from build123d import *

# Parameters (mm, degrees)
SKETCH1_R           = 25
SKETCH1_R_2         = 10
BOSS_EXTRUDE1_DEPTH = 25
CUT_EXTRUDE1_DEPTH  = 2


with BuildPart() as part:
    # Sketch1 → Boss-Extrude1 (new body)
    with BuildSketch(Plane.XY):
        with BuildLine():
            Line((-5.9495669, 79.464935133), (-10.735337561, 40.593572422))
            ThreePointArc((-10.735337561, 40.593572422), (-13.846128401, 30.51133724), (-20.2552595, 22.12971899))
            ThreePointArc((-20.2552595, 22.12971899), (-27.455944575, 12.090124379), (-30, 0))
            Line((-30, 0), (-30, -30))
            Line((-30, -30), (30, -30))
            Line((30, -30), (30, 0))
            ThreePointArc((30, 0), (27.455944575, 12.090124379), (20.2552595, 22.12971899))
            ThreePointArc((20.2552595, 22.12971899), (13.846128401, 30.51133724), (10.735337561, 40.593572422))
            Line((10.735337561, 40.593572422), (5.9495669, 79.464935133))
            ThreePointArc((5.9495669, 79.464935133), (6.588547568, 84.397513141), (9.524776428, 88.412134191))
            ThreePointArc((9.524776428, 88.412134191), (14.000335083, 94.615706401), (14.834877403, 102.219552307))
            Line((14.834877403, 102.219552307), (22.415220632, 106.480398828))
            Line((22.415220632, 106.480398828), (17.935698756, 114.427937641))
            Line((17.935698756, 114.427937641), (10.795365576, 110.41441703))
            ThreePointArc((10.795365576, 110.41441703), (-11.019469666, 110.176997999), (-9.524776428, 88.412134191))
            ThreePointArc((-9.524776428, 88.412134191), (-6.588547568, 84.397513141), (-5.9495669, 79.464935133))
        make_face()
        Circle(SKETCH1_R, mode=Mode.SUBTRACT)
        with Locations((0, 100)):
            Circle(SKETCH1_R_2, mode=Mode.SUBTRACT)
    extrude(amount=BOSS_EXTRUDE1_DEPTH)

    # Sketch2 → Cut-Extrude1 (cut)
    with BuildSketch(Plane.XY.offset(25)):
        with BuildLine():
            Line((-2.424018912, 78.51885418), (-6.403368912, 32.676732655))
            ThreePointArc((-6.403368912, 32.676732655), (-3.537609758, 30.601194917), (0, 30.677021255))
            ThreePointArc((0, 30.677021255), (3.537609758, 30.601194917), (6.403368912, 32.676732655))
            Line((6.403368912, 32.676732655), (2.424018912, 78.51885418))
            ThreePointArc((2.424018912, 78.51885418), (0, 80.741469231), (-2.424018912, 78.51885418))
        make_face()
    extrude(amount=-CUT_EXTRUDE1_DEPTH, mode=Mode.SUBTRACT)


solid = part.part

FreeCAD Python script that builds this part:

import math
import FreeCAD as App
import Part
import Sketcher
Q = App.Units.Quantity

doc = App.newDocument("Part")
body = doc.addObject("PartDesign::Body", "Body")

sketch1 = doc.addObject("Sketcher::SketchObject", "Sketch")
body.addObject(sketch1)
sketch1.AttachmentSupport = (doc.XY_Plane, [""])
sketch1.MapMode = "FlatFace"
sketch1.addGeometry([
    Part.LineSegment(App.Vector(-6, 79, 0), App.Vector(-11, 41, 0)),
    Part.ArcOfCircle(Part.Circle(App.Vector(-41, 44, 0), App.Vector(0, 0, 1), 30), math.radians(-48), math.radians(-7)),
    Part.ArcOfCircle(Part.Circle(App.Vector(0, 0, 0), App.Vector(0, 0, 1), 30), math.radians(132), math.radians(180)),
    Part.LineSegment(App.Vector(-30, 0, 0), App.Vector(-30, -30, 0)),
    Part.LineSegment(App.Vector(-30, -30, 0), App.Vector(30, -30, 0)),
    Part.LineSegment(App.Vector(30, -30, 0), App.Vector(30, 0, 0)),
    Part.ArcOfCircle(Part.Circle(App.Vector(0, 0, 0), App.Vector(0, 0, 1), 30), math.radians(0), math.radians(48)),
    Part.ArcOfCircle(Part.Circle(App.Vector(41, 44, 0), App.Vector(0, 0, 1), 30), math.radians(-173), math.radians(-132)),
    Part.LineSegment(App.Vector(11, 41, 0), App.Vector(6, 79, 0)),
    Part.ArcOfCircle(Part.Circle(App.Vector(16, 81, 0), App.Vector(0, 0, 1), 10), math.radians(129), math.radians(187)),
    Part.ArcOfCircle(Part.Circle(App.Vector(0, 100, 0), App.Vector(0, 0, 1), 15), math.radians(-51), math.radians(9)),
    Part.LineSegment(App.Vector(15, 102, 0), App.Vector(22, 106, 0)),
    Part.LineSegment(App.Vector(22, 106, 0), App.Vector(18, 114, 0)),
    Part.LineSegment(App.Vector(18, 114, 0), App.Vector(11, 110, 0)),
    Part.ArcOfCircle(Part.Circle(App.Vector(0, 100, 0), App.Vector(0, 0, 1), 15), math.radians(44), math.radians(231)),
    Part.ArcOfCircle(Part.Circle(App.Vector(-16, 81, 0), App.Vector(0, 0, 1), 10), math.radians(-7), math.radians(51)),
    Part.Circle(App.Vector(0, 0, 0), App.Vector(0, 0, 1), 25),
    Part.Circle(App.Vector(0, 100, 0), App.Vector(0, 0, 1), 10),
], False)
sketch1.addConstraint([
    Sketcher.Constraint("Tangent", 0, 2, 1, 2),
    Sketcher.Constraint("Tangent", 1, 1, 2, 1),
    Sketcher.Constraint("Tangent", 2, 2, 3, 1),
    Sketcher.Constraint("Coincident", 3, 2, 4, 1),
    Sketcher.Constraint("Coincident", 4, 2, 5, 1),
    Sketcher.Constraint("Tangent", 5, 2, 6, 1),
    Sketcher.Constraint("Tangent", 6, 2, 7, 2),
    Sketcher.Constraint("Tangent", 7, 1, 8, 1),
    Sketcher.Constraint("Tangent", 8, 2, 9, 2),
    Sketcher.Constraint("Tangent", 9, 1, 10, 1),
    Sketcher.Constraint("Coincident", 10, 2, 11, 1),
    Sketcher.Constraint("Coincident", 11, 2, 12, 1),
    Sketcher.Constraint("Coincident", 12, 2, 13, 1),
    Sketcher.Constraint("Coincident", 13, 2, 14, 1),
    Sketcher.Constraint("Tangent", 14, 2, 15, 2),
    Sketcher.Constraint("Tangent", 15, 1, 0, 1),
    Sketcher.Constraint("Vertical", 3),
    Sketcher.Constraint("Horizontal", 4),
    Sketcher.Constraint("Vertical", 5),
    Sketcher.Constraint("Coincident", 2, 3, -1, 1),
    Sketcher.Constraint("Coincident", 6, 3, -1, 1),
    Sketcher.Constraint("Coincident", 16, 3, -1, 1),
    Sketcher.Constraint("Coincident", 14, 3, 10, 3),
    Sketcher.Constraint("Coincident", 17, 3, 10, 3),
    Sketcher.Constraint("Equal", 1, 2),
    Sketcher.Constraint("Equal", 2, 6),
    Sketcher.Constraint("Equal", 6, 7),
    Sketcher.Constraint("Equal", 10, 14),
    Sketcher.Constraint("Equal", 9, 15),
    Sketcher.Constraint("Equal", 15, 17),
    Sketcher.Constraint("Symmetric", 9, 3, 15, 3, -2),
    Sketcher.Constraint("Parallel", 11, 13),
    Sketcher.Constraint("Horizontal", 1, 3, 7, 3),
    Sketcher.Constraint("Diameter", 16, Q("50 mm")),
    Sketcher.Constraint("Diameter", 17, Q("20 mm")),
    Sketcher.Constraint("Radius", 1, Q("30 mm")),
    Sketcher.Constraint("Radius", 10, Q("15 mm")),
    Sketcher.Constraint("DistanceY", 3, 2, 3, 1, Q("30 mm")),
    Sketcher.Constraint("DistanceY", -1, 1, 10, 3, Q("100 mm")),
    Sketcher.Constraint("DistanceY", -1, 1, 11, 2, Q("106.480399 mm")),
    Sketcher.Constraint("DistanceX", -1, 1, 12, 2, Q("17.935699 mm")),
    Sketcher.Constraint("DistanceY", 8, 2, 9, 1, Q("8.947199 mm")),
    Sketcher.Constraint("DistanceX", 9, 1, 10, 2, Q("5.310101 mm")),
    Sketcher.Constraint("Distance", 11, Q("8.69577 mm")),
    Sketcher.Constraint("Distance", 12, Q("9.12302 mm")),
    Sketcher.Constraint("DistanceX", 1, 3, -1, 1, Q("40.510519 mm")),
])
pad1 = doc.addObject("PartDesign::Pad", "Pad")
body.addObject(pad1)
pad1.Profile = sketch1
pad1.Length = 25

sketch2 = doc.addObject("Sketcher::SketchObject", "Sketch001")
body.addObject(sketch2)
sketch2.AttachmentSupport = (doc.XY_Plane, [""])
sketch2.MapMode = "FlatFace"
sketch2.AttachmentOffset = App.Placement(App.Vector(0, 0, 25), App.Rotation())
sketch2.addGeometry([
    Part.LineSegment(App.Vector(-2.4, 78.5, 0), App.Vector(-6.4, 32.7, 0)),
    Part.ArcOfCircle(Part.Circle(App.Vector(-1.9, 35.9, 0), App.Vector(0, 0, 1), 5.6), math.radians(-144), math.radians(-70)),
    Part.ArcOfCircle(Part.Circle(App.Vector(1.9, 35.9, 0), App.Vector(0, 0, 1), 5.6), math.radians(-110), math.radians(-36)),
    Part.LineSegment(App.Vector(6.4, 32.7, 0), App.Vector(2.4, 78.5, 0)),
    Part.ArcOfCircle(Part.Circle(App.Vector(0, 78.3, 0), App.Vector(0, 0, 1), 2.4), math.radians(5), math.radians(175)),
], False)
sketch2.addConstraint([
    Sketcher.Constraint("Coincident", 0, 2, 1, 1),
    Sketcher.Constraint("Coincident", 1, 2, 2, 1),
    Sketcher.Constraint("Coincident", 2, 2, 3, 1),
    Sketcher.Constraint("Coincident", 3, 2, 4, 1),
    Sketcher.Constraint("Coincident", 4, 2, 0, 1),
    Sketcher.Constraint("Equal", 1, 2),
    Sketcher.Constraint("Symmetric", 1, 3, 2, 3, -2),
    Sketcher.Constraint("Symmetric", 3, 2, 4, 2, -2),
    Sketcher.Constraint("Horizontal", 0, 2, 2, 2),
    Sketcher.Constraint("Radius", 1, Q("5.55518 mm")),
    Sketcher.Constraint("Radius", 4, Q("2.433144 mm")),
    Sketcher.Constraint("DistanceX", 1, 3, 2, 3, Q("3.763301 mm")),
    Sketcher.Constraint("DistanceY", -1, 1, 1, 3, Q("35.903819 mm")),
    Sketcher.Constraint("DistanceX", 0, 2, -1, 1, Q("6.403369 mm")),
    Sketcher.Constraint("DistanceX", -1, 1, 3, 2, Q("2.424019 mm")),
    Sketcher.Constraint("DistanceY", 2, 2, 3, 2, Q("45.842122 mm")),
])
pocket1 = doc.addObject("PartDesign::Pocket", "Pocket")
body.addObject(pocket1)
pocket1.Profile = sketch2
pocket1.Length = 2

doc.recompute()
